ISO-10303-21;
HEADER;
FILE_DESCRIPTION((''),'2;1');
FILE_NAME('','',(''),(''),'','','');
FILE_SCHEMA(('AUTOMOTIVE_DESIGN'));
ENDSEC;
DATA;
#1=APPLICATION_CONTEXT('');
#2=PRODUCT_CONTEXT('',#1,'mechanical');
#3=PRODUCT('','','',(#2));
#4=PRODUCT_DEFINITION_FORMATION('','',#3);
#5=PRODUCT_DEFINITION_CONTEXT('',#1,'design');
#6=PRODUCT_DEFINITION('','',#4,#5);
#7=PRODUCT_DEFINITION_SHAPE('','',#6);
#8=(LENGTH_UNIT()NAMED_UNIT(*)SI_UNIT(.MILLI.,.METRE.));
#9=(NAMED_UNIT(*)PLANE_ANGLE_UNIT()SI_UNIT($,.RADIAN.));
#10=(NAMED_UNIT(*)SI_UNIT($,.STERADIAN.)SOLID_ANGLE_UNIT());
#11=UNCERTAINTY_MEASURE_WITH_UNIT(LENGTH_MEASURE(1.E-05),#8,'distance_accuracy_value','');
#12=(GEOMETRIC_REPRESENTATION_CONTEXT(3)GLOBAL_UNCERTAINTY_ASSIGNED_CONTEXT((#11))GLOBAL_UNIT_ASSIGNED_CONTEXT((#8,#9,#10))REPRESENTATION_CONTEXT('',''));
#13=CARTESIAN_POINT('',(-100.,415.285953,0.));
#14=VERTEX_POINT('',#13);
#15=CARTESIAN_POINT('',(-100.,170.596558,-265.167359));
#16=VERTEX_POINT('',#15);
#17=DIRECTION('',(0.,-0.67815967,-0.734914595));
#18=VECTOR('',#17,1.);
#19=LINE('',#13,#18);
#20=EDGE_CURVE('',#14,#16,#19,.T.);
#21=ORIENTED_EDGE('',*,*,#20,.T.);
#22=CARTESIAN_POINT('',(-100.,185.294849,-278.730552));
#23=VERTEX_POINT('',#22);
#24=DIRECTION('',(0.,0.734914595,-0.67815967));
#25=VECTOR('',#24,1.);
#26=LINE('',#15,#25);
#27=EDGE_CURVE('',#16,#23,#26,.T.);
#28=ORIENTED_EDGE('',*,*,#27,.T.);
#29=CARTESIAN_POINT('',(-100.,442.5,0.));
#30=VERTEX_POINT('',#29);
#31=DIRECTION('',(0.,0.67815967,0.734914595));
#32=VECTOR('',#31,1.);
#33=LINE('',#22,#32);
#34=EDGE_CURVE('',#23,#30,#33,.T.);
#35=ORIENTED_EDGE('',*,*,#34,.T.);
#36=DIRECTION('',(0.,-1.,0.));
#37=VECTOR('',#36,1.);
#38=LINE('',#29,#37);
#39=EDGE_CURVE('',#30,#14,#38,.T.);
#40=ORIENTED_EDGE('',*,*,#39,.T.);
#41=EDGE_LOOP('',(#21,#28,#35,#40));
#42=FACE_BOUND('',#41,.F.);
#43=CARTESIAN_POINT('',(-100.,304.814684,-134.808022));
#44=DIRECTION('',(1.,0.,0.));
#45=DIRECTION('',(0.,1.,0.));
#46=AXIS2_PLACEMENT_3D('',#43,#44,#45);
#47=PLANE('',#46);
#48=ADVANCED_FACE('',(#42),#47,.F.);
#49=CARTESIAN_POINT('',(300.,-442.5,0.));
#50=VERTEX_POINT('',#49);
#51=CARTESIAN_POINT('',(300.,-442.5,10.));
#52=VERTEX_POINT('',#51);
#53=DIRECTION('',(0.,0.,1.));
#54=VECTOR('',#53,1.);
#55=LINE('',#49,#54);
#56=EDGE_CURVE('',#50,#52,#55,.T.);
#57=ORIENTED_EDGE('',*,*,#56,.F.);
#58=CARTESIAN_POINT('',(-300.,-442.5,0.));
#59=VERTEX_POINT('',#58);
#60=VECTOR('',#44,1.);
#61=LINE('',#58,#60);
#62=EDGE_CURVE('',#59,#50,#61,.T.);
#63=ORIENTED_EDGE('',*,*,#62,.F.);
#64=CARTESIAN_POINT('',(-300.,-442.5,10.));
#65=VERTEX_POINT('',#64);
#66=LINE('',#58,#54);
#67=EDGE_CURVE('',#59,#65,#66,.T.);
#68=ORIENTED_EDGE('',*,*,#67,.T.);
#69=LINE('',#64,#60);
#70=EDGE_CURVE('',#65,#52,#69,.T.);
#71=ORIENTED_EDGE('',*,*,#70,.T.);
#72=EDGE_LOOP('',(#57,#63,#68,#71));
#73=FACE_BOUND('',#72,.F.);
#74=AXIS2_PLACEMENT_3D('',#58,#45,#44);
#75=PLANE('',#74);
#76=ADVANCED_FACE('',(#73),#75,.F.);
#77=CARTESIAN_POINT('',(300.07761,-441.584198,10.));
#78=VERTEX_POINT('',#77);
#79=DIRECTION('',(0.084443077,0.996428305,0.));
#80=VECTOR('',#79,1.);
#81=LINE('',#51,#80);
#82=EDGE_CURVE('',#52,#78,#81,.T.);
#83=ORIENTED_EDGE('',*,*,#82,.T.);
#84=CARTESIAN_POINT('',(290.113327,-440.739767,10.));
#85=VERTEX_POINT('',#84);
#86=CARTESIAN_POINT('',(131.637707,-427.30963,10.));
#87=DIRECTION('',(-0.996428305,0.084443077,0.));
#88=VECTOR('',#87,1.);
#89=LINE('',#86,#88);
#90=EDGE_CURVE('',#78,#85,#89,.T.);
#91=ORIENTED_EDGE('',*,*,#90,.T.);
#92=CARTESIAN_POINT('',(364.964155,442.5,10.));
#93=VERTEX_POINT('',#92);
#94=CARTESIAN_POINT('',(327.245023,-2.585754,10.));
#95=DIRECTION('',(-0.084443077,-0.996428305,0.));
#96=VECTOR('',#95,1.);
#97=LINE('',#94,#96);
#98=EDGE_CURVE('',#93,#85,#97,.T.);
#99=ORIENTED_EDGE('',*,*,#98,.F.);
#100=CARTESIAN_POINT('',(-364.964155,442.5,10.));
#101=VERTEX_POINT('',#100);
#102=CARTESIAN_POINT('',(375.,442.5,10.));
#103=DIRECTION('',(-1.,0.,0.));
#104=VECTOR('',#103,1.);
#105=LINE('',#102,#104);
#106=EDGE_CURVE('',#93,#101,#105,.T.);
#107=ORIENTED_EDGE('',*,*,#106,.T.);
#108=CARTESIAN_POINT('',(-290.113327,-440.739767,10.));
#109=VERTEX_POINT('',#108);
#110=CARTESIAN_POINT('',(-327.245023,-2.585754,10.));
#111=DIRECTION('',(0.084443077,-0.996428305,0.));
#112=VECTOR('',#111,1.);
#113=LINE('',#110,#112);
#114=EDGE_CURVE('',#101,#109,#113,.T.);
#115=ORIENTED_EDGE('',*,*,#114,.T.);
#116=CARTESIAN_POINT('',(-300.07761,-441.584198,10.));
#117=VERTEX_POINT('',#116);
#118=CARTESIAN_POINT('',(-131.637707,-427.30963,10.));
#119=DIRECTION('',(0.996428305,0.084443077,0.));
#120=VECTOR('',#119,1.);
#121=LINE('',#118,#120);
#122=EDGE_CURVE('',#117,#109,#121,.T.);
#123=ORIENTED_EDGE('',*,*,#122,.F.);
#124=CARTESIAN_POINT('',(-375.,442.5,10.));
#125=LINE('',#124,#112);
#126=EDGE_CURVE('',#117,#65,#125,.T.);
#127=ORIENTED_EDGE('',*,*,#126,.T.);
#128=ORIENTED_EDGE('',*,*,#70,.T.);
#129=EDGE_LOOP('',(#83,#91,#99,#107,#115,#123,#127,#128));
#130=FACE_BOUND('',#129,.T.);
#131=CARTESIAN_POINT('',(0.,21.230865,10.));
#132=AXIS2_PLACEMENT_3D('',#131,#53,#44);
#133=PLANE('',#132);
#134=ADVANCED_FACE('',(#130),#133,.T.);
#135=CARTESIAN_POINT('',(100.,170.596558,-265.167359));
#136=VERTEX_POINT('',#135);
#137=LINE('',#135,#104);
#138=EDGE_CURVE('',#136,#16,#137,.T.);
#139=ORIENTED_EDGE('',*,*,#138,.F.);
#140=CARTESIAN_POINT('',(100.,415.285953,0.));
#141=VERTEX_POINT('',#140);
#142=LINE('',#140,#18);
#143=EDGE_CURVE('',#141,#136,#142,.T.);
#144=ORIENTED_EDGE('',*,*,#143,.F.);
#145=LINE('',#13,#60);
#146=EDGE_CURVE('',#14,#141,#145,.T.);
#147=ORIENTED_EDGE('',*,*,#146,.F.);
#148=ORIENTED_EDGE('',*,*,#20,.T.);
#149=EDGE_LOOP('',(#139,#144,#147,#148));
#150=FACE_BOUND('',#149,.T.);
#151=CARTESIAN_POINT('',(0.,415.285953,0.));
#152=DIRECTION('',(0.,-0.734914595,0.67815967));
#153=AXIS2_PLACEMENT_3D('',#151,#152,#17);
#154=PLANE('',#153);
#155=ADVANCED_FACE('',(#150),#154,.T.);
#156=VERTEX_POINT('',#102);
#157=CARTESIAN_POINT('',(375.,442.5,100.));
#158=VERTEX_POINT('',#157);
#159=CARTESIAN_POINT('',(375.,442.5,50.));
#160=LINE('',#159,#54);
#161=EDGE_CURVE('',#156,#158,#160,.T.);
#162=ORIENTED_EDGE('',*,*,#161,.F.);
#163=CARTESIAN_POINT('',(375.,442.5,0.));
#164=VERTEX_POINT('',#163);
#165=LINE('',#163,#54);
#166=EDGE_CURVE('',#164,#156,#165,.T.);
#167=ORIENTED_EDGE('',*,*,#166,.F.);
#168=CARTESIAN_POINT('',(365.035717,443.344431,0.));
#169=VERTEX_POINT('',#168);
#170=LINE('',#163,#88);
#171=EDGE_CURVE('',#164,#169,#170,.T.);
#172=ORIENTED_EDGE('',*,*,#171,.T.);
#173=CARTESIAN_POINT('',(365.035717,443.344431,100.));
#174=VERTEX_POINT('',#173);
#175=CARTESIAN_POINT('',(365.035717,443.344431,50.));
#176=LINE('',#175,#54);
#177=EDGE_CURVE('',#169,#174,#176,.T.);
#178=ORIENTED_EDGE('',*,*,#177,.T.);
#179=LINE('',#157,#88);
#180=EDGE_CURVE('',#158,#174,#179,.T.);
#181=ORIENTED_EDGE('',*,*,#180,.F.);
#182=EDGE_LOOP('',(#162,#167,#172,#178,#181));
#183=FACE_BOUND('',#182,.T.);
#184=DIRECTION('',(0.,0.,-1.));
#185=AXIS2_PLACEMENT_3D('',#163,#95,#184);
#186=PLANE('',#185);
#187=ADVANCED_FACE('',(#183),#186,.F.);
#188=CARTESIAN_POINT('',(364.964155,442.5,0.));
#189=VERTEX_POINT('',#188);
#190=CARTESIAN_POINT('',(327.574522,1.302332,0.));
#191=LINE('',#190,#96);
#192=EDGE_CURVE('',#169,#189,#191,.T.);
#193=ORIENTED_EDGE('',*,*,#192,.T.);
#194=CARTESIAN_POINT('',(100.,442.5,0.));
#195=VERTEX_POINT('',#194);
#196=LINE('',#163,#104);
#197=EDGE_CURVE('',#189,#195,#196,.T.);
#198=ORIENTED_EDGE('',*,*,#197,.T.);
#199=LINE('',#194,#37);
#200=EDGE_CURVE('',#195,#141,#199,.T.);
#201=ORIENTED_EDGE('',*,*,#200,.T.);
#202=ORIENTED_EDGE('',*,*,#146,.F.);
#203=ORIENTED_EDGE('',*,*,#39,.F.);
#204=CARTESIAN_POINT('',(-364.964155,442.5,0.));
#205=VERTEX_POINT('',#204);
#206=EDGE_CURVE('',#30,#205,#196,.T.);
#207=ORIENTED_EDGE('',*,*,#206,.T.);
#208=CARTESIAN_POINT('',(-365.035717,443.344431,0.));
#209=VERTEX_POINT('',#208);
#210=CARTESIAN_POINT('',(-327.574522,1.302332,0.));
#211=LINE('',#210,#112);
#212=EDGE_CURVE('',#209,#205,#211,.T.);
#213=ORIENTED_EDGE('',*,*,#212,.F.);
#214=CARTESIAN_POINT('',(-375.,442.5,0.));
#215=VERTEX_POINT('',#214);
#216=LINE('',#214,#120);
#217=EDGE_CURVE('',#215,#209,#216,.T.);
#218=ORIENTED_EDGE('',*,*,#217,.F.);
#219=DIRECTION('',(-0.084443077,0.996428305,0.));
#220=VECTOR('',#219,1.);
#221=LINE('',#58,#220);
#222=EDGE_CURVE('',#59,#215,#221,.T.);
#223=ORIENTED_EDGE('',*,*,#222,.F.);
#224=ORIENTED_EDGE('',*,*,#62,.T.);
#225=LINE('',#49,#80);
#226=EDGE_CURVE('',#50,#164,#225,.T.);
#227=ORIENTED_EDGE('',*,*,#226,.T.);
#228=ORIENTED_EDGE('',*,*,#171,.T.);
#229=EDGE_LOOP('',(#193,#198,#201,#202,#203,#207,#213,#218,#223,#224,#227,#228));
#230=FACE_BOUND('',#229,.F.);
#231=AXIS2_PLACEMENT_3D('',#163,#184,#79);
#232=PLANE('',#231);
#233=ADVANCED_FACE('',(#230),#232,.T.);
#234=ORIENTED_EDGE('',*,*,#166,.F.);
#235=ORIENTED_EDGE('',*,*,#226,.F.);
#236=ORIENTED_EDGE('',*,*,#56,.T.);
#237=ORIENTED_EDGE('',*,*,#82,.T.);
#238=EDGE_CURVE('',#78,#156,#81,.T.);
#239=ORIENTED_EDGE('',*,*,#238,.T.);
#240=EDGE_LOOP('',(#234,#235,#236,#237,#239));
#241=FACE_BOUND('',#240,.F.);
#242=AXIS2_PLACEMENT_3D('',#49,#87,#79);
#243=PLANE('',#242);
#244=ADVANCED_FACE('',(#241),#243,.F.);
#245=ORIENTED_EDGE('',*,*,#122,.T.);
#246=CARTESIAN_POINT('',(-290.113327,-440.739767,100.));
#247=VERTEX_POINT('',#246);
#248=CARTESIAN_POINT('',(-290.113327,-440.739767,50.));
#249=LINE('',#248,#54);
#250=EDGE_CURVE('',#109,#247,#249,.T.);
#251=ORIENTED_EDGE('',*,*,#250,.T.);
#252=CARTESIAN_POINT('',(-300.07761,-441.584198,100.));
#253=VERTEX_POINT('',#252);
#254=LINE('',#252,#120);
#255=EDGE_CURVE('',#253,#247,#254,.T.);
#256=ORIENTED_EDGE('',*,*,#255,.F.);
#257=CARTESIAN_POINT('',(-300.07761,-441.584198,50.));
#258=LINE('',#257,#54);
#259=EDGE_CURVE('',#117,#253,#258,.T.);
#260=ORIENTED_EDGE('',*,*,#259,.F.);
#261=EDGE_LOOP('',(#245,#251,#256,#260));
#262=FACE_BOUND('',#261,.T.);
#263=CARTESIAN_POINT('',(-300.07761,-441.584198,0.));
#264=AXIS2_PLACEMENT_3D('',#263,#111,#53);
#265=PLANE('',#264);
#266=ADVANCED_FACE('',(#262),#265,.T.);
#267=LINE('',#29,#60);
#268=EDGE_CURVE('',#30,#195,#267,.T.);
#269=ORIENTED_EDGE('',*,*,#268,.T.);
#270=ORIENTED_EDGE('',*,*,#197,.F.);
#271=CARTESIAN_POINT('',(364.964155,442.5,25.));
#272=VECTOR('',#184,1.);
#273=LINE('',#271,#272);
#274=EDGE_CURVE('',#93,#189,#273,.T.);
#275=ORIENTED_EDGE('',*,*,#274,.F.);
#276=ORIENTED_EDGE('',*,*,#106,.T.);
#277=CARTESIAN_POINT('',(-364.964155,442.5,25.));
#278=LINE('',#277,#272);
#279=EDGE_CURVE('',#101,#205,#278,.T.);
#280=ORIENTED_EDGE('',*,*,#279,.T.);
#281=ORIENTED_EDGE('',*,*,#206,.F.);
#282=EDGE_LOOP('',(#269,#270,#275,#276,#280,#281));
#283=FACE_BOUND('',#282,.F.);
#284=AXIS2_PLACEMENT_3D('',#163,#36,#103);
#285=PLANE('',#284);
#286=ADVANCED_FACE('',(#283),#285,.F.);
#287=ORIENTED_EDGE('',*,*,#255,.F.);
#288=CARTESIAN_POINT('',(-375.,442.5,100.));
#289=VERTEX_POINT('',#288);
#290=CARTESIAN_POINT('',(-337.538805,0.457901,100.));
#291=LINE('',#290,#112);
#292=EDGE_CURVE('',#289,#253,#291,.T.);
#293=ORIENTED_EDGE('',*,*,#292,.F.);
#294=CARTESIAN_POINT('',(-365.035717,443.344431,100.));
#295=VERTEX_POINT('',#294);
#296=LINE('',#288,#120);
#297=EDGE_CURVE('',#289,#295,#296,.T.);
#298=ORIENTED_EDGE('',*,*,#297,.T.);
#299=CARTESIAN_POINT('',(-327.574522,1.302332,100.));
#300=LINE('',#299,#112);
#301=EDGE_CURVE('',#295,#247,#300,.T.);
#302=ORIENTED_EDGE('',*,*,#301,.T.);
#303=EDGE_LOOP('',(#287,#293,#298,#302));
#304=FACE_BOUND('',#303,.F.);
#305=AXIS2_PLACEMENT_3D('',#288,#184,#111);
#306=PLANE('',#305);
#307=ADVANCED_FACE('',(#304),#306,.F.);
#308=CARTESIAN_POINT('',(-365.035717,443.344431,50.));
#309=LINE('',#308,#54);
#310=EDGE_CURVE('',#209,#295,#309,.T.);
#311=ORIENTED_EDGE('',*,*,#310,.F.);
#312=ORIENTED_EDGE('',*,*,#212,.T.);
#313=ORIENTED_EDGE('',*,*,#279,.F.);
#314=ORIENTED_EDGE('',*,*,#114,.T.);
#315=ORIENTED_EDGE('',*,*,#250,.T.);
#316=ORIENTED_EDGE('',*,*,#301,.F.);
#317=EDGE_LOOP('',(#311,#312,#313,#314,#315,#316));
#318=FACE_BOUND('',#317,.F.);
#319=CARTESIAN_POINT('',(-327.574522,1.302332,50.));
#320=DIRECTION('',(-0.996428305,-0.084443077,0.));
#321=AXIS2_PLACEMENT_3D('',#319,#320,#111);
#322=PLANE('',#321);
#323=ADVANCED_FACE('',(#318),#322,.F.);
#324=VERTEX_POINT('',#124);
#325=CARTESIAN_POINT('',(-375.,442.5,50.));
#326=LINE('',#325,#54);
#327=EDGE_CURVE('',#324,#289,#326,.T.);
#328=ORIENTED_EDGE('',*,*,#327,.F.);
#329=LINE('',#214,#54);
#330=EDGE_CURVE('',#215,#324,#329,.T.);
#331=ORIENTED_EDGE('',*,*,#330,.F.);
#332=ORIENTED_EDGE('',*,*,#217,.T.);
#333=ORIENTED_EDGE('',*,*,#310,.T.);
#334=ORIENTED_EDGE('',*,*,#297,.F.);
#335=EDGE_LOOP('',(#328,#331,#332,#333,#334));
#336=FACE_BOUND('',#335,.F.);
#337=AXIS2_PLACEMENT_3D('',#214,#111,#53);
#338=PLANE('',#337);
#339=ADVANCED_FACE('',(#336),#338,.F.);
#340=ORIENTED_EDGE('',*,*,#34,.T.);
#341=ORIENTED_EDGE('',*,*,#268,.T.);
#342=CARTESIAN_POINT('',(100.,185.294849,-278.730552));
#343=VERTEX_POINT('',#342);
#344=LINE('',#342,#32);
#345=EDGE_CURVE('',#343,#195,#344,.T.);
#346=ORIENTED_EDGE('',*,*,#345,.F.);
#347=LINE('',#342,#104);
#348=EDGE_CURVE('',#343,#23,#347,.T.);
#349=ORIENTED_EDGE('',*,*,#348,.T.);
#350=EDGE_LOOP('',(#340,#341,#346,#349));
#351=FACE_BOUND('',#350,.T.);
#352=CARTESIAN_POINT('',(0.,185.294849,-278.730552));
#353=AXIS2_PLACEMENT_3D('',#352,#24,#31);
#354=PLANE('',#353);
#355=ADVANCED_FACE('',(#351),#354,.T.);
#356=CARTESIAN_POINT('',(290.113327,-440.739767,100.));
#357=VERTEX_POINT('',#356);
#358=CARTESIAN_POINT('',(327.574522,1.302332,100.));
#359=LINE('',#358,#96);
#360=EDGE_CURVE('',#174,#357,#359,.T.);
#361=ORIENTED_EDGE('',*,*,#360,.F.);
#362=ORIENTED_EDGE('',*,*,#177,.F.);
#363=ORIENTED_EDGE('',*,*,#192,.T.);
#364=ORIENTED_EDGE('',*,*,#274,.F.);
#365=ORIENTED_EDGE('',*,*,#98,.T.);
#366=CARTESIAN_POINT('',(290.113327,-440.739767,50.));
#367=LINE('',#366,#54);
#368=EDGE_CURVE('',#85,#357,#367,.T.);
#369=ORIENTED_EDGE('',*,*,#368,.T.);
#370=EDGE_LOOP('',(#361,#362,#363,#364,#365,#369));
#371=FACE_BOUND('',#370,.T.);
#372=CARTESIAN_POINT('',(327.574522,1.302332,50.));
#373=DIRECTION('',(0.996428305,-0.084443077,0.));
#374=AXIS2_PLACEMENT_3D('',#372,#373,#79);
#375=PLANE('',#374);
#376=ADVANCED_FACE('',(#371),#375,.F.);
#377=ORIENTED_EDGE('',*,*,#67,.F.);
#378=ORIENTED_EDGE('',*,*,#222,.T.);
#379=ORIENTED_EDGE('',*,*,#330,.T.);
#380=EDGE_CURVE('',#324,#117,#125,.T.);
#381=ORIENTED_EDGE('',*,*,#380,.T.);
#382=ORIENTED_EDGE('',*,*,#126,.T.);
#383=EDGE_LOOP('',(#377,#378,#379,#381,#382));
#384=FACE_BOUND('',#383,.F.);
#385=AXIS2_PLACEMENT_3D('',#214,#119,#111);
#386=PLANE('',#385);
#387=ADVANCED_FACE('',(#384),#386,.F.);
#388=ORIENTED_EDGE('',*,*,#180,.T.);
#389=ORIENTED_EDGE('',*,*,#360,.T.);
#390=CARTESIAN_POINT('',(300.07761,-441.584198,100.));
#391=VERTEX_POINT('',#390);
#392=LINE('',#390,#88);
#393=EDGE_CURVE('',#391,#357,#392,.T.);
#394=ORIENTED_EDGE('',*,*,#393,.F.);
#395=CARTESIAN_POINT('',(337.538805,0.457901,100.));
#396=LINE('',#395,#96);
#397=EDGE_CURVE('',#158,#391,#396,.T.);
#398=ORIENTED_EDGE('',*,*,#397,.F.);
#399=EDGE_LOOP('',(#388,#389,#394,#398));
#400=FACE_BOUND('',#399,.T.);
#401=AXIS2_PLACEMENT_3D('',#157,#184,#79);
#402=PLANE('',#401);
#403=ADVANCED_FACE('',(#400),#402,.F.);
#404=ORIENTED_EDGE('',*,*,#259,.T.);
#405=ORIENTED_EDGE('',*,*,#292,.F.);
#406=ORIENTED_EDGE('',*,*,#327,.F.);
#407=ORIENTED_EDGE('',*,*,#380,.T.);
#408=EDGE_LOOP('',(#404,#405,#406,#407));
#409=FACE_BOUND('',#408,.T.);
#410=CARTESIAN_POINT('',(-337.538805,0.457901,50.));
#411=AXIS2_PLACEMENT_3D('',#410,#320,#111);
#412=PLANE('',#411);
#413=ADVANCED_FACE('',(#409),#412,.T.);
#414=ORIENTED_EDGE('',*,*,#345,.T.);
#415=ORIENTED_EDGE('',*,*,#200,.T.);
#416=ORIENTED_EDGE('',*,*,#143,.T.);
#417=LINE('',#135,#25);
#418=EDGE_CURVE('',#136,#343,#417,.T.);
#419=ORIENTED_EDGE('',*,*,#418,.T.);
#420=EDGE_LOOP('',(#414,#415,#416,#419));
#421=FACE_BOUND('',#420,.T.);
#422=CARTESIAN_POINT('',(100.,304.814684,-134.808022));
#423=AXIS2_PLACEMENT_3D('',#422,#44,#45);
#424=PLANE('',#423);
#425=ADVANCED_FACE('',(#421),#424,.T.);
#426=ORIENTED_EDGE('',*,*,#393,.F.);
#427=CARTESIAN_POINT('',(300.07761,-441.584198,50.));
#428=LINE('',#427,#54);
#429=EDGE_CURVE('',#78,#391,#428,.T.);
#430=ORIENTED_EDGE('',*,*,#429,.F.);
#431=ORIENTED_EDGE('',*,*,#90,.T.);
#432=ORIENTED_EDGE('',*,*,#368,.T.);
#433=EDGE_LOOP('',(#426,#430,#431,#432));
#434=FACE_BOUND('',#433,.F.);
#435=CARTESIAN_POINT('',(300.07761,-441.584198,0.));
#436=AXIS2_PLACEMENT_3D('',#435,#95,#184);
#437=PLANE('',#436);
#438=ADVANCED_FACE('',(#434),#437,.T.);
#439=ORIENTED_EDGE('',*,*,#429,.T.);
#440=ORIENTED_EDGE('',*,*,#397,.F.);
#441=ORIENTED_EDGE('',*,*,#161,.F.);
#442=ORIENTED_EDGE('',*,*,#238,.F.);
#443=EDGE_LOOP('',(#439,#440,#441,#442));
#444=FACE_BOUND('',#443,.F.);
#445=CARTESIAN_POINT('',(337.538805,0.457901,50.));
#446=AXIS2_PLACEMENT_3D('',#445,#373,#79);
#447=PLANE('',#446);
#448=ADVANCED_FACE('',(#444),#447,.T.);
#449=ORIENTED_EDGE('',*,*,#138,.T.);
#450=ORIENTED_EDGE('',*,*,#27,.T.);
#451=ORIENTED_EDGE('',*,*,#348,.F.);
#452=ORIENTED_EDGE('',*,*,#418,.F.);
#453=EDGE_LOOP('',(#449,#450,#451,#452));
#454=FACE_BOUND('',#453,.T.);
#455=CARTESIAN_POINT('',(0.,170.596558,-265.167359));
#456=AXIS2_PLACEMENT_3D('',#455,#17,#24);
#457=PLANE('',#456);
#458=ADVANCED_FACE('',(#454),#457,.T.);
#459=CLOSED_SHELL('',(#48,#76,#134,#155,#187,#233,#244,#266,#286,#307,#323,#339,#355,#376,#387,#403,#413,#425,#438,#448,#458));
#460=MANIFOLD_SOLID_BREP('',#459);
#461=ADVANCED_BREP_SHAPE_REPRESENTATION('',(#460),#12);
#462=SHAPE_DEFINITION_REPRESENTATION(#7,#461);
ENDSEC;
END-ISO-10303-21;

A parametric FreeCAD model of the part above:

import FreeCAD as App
import Part
import Sketcher
from FreeCAD import Vector
Q = App.Units.Quantity


def add_polygon(sketch, points):
    """Adds a closed chain of lines whose ends are joined by coincident constraints."""
    first, n = sketch.GeometryCount, len(points)
    for a, b in zip(points, points[1:] + points[:1]):
        sketch.addGeometry(Part.LineSegment(App.Vector(*a, 0), App.Vector(*b, 0)), False)
    for i in range(n):
        sketch.addConstraint(Sketcher.Constraint("Coincident", first + i, 2, first + (i + 1) % n, 1))

doc = App.newDocument("Part")
params = doc.addObject("Spreadsheet::Sheet", "Params")
for row, (alias, value) in enumerate([
    ("sketch1_width", "600 mm"),
    ("sketch1_width2", "750 mm"),
    ("pad1_length", "10 mm"),
    ("sketch2_height", "100 mm"),
    ("pad2_length", "10 mm"),
    ("sketch3_length", "20 mm"),
    ("pad3_length", "200 mm"),
], start=1):
    params.set(f"A{row}", alias)
    params.set(f"B{row}", "=" + value)
    params.setAlias(f"B{row}", alias)

body = doc.addObject("PartDesign::Body", "Body")

# Sketch on XY plane
sketch1 = body.newObject("Sketcher::SketchObject", "Sketch")
sketch1.AttachmentSupport = (doc.getObject("XY_Plane"), [""])
sketch1.MapMode = "FlatFace"
add_polygon(sketch1, [(-300, -442.5), (300, -442.5), (375, 442.5), (-375, 442.5)])  # lines 0-3
sketch1.addConstraint([
    Sketcher.Constraint("Horizontal", 0),
    Sketcher.Constraint("Horizontal", 2),
    Sketcher.Constraint("Equal", 1, 3),
    Sketcher.Constraint("DistanceX", 0, 1, 0, 2, Q("600 mm")),
    Sketcher.Constraint("DistanceX", 2, 2, 2, 1, Q("750 mm")),
    Sketcher.Constraint("DistanceX", -1, 1, 0, 2, Q("300 mm")),
    Sketcher.Constraint("DistanceY", 0, 2, 1, 2, Q("885 mm")),
    Sketcher.Constraint("DistanceY", 0, 2, -1, 1, Q("442.5 mm")),
])
sketch1.setExpression("Constraints[7]", "Params.sketch1_width")
sketch1.setExpression("Constraints[8]", "Params.sketch1_width2")
pad1 = body.newObject("PartDesign::Pad", "Pad")
pad1.Profile = sketch1
pad1.setExpression("Length", "Params.pad1_length")

# Sketch on an angled plane
sketch2 = body.newObject("Sketcher::SketchObject", "Sketch001")
sketch2.Placement = App.Placement(Vector(-335.093411, -28.397747, 0), App.Rotation(Vector(0.084443077, -0.996428305, 0), Vector(0, 0, 1), Vector(-0.996428305, -0.084443077, 0), "ZXY"))
add_polygon(sketch2, [(-472.585679, 100), (-472.585679, 0), (414.667517, 0), (414.667517, 100)])  # lines 0-3
sketch2.addConstraint([
    Sketcher.Constraint("Vertical", 0),
    Sketcher.Constraint("Horizontal", 1),
    Sketcher.Constraint("Vertical", 2),
    Sketcher.Constraint("Horizontal", 3),
    Sketcher.Constraint("PointOnObject", 0, 2, -1),
    Sketcher.Constraint("DistanceY", 0, 2, 0, 1, Q("100 mm")),
    Sketcher.Constraint("DistanceX", 1, 1, 1, 2, Q("887.253196 mm")),
    Sketcher.Constraint("DistanceX", 0, 2, -1, 1, Q("472.585679 mm")),
])
sketch2.setExpression("Constraints[9]", "Params.sketch2_height")
pad2 = body.newObject("PartDesign::Pad", "Pad001")
pad2.Profile = sketch2
pad2.setExpression("Length", "Params.pad2_length")
pad2.Reversed = True
body2 = doc.addObject("PartDesign::Body", "Body001")
doc.recompute()

body2.BaseFeature = body
doc.recompute()

mirroring = doc.addObject("Part::Mirroring", "Mirroring")
mirroring.Source = body
mirroring.Base = Vector(0, 0, 0)
mirroring.Normal = Vector(1, 0, 0)
body3 = doc.addObject("PartDesign::Body", "Body002")
body3.BaseFeature = mirroring
boolean = body2.newObject("PartDesign::Boolean", "Boolean")
boolean.Type = "Fuse"
boolean.addObjects([body3])
doc.recompute()

# Sketch on YZ plane
sketch3 = body2.newObject("Sketcher::SketchObject", "Sketch002")
sketch3.AttachmentSupport = (doc.getObject("YZ_Plane001"), [""])
sketch3.MapMode = "FlatFace"
add_polygon(sketch3, [(185.294849, -278.730552), (442.5, 0), (415.285953, 0), (170.596558, -265.167359)])  # lines 0-3
sketch3.addConstraint([
    Sketcher.Constraint("Horizontal", 1),
    Sketcher.Constraint("PointOnObject", 0, 2, -1),
    Sketcher.Constraint("Parallel", 0, 2),
    Sketcher.Constraint("Perpendicular", 2, 3),
    Sketcher.Constraint("Distance", 3, Q("20 mm")),
    Sketcher.Constraint("Angle", 0, Q("47.3 deg")),
    Sketcher.Constraint("DistanceX", -1, 1, 0, 2, Q("442.5 mm")),
    Sketcher.Constraint("Distance", 0, Q("379.269311 mm")),
])
sketch3.setExpression("Constraints[8]", "Params.sketch3_length")
pad3 = body2.newObject("PartDesign::Pad", "Pad002")
pad3.Profile = sketch3
pad3.setExpression("Length", "Params.pad3_length")
pad3.Midplane = True
mirroring.Visibility = False

doc.recompute()
